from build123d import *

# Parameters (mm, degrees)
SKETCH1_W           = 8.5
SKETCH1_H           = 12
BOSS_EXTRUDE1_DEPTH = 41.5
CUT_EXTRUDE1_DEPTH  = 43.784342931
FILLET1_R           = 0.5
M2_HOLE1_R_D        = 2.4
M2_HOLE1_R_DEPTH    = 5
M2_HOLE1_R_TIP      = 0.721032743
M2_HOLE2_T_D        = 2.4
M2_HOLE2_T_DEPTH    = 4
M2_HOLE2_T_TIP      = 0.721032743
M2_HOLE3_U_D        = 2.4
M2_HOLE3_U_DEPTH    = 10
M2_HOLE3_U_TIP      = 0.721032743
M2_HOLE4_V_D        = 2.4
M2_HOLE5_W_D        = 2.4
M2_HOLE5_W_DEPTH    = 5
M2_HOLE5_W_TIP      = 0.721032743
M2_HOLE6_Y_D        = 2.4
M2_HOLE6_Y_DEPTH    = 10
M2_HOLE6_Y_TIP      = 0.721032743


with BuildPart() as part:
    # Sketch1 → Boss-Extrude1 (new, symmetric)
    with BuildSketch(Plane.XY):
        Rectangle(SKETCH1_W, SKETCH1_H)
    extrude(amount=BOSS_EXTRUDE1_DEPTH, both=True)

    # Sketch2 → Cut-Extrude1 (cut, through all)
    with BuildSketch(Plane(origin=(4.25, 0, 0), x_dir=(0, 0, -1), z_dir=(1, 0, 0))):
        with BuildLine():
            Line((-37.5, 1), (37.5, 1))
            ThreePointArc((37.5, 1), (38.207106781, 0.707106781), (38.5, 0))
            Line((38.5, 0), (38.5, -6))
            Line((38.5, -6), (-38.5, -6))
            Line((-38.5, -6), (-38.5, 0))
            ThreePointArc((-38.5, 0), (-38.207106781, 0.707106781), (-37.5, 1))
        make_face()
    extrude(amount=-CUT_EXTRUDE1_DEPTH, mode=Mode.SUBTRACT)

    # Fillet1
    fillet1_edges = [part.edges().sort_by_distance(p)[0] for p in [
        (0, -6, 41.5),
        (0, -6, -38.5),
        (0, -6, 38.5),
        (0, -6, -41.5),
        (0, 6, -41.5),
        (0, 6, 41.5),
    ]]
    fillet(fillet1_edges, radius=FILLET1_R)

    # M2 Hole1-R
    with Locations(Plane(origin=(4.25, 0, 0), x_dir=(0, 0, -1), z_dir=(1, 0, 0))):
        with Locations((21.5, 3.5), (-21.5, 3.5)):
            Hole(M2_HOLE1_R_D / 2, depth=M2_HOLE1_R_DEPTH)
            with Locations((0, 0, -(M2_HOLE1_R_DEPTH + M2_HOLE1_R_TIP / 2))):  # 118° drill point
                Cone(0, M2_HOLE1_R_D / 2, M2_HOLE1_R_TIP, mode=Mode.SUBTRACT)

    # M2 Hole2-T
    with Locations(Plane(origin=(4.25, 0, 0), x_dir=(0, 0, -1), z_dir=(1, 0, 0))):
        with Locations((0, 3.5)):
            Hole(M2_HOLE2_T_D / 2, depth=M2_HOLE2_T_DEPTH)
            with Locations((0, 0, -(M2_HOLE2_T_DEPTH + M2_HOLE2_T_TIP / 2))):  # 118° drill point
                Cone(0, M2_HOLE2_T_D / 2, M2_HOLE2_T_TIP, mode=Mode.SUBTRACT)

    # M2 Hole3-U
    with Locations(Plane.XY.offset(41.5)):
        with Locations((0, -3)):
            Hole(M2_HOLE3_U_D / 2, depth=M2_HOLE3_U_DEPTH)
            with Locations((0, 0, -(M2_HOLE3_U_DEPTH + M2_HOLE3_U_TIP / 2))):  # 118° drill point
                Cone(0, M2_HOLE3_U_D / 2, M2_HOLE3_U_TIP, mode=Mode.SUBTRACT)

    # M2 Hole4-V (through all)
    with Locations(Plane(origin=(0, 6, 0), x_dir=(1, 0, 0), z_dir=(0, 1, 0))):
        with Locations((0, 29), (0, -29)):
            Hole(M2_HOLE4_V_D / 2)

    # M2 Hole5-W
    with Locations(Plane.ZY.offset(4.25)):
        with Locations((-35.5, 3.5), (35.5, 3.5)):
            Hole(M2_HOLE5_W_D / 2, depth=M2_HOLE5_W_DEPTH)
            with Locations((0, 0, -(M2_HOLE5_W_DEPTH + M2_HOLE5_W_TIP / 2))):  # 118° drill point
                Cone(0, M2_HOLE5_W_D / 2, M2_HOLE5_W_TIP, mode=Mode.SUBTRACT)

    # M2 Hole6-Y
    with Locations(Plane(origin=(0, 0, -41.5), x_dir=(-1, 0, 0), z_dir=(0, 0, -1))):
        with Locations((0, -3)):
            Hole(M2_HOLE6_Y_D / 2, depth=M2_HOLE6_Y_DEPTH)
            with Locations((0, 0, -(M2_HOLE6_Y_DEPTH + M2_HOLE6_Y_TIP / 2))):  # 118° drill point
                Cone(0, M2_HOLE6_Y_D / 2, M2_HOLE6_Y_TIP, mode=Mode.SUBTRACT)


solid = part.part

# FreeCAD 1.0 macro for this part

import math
import FreeCAD as App
import Part
import Sketcher

V = App.Vector


def edges_at(feature, points):
    """Names of the edges that pass closest to the given points."""
    edges = feature.Shape.Edges
    near = lambda p: min(range(len(edges)), key=lambda i: edges[i].distToShape(Part.Vertex(*p))[0])
    return sorted({f"Edge{near(p) + 1}" for p in points})


def add_polygon(sketch, points):
    """Adds a closed chain of lines whose ends are joined by coincident constraints."""
    first, n = sketch.GeometryCount, len(points)
    for a, b in zip(points, points[1:] + points[:1]):
        sketch.addGeometry(Part.LineSegment(App.Vector(*a, 0), App.Vector(*b, 0)), False)
    for i in range(n):
        sketch.addConstraint(Sketcher.Constraint("Coincident", first + i, 2, first + (i + 1) % n, 1))

doc = App.newDocument("Part")
params = doc.addObject("Spreadsheet::Sheet", "Params")
for row, (alias, value) in enumerate([
    ("sketch1_height", "12 mm"),
    ("sketch1_width", "8.5 mm"),
    ("pad1_length", "83 mm"),
    ("sketch2_radius", "1 mm"),
    ("sketch2_width", "6 mm"),
    ("sketch2_height", "75 mm"),
    ("fillet_radius", "0.5 mm"),
    ("sketch3_diameter", "2.4 mm"),
    ("hole_diameter", "2.4 mm"),
    ("hole_depth", "5 mm"),
    ("sketch4_diameter", "2.4 mm"),
    ("hole2_diameter", "2.4 mm"),
    ("hole2_depth", "4 mm"),
    ("sketch5_diameter", "2.4 mm"),
    ("hole3_diameter", "2.4 mm"),
    ("hole3_depth", "10 mm"),
    ("sketch6_diameter", "2.4 mm"),
    ("hole4_diameter", "2.4 mm"),
    ("sketch7_diameter", "2.4 mm"),
    ("hole5_diameter", "2.4 mm"),
    ("hole5_depth", "5 mm"),
    ("sketch8_diameter", "2.4 mm"),
    ("hole6_diameter", "2.4 mm"),
    ("hole6_depth", "10 mm"),
], start=1):
    params.set(f"A{row}", alias)
    params.set(f"B{row}", "=" + value)
    params.setAlias(f"B{row}", alias)

body = doc.addObject("PartDesign::Body", "Body")

# Sketch on XY plane
sketch1 = body.newObject("Sketcher::SketchObject", "Sketch")
sketch1.AttachmentSupport = (doc.getObject("XY_Plane"), [""])
sketch1.MapMode = "FlatFace"
add_polygon(sketch1, [(-4, 6), (-4, -6), (4, -6), (4, 6)])  # lines 0-3
sketch1.addConstraint([
    Sketcher.Constraint("Vertical", 0),
    Sketcher.Constraint("Horizontal", 1),
    Sketcher.Constraint("Vertical", 2),
    Sketcher.Constraint("Horizontal", 3),
    Sketcher.Constraint("Symmetric", 0, 2, 2, 2, -1, 1),
    Sketcher.Constraint("DistanceY", 0, 2, 0, 1, 12.0),
    Sketcher.Constraint("DistanceX", 1, 1, 1, 2, 8.5),
])
sketch1.setExpression("Constraints[9]", "Params.sketch1_height")
sketch1.setExpression("Constraints[10]", "Params.sketch1_width")
pad1 = body.newObject("PartDesign::Pad", "Pad")
pad1.Profile = sketch1
pad1.setExpression("Length", "Params.pad1_length")
pad1.Midplane = True

# Sketch on YZ plane
sketch2 = body.newObject("Sketcher::SketchObject", "Sketch001")
sketch2.AttachmentSupport = (doc.getObject("YZ_Plane"), [""])
sketch2.MapMode = "FlatFace"
sketch2.AttachmentOffset = App.Placement(V(0, 0, 4.25), App.Rotation())
sketch2.addGeometry([
    Part.LineSegment(V(1, -37.5, 0), V(1, 37.5, 0)),  # 0
    Part.ArcOfCircle(Part.Circle(V(0, 37.5, 0), V(0, 0, 1), 1), math.radians(0), math.radians(90)),  # 1
    Part.LineSegment(V(0, 38.5, 0), V(-6, 38.5, 0)),  # 2
    Part.LineSegment(V(-6, 38.5, 0), V(-6, -38.5, 0)),  # 3
    Part.LineSegment(V(-6, -38.5, 0), V(0, -38.5, 0)),  # 4
    Part.ArcOfCircle(Part.Circle(V(0, -37.5, 0), V(0, 0, 1), 1), math.radians(-90), math.radians(0)),  # 5
], False)
sketch2.addConstraint([
    Sketcher.Constraint("Tangent", 0, 2, 1, 1),
    Sketcher.Constraint("Tangent", 1, 2, 2, 1),
    Sketcher.Constraint("Coincident", 2, 2, 3, 1),
    Sketcher.Constraint("Coincident", 3, 2, 4, 1),
    Sketcher.Constraint("Tangent", 4, 2, 5, 1),
    Sketcher.Constraint("Tangent", 5, 2, 0, 1),
    Sketcher.Constraint("Vertical", 0),
    Sketcher.Constraint("Horizontal", 2),
    Sketcher.Constraint("Vertical", 3),
    Sketcher.Constraint("Horizontal", 4),
    Sketcher.Constraint("Equal", 1, 5),
    Sketcher.Constraint("Symmetric", 1, 3, 5, 3, -1, 1),
    Sketcher.Constraint("Radius", 1, 1.0),
    Sketcher.Constraint("DistanceX", 2, 2, 2, 1, 6.0),
    Sketcher.Constraint("DistanceY", 0, 1, 0, 2, 75.0),
])
sketch2.setExpression("Constraints[12]", "Params.sketch2_radius")
sketch2.setExpression("Constraints[13]", "Params.sketch2_width")
sketch2.setExpression("Constraints[14]", "Params.sketch2_height")
pocket1 = body.newObject("PartDesign::Pocket", "Pocket")
pocket1.Profile = sketch2
pocket1.Type = "ThroughAll"
doc.recompute()

fillet = body.newObject("PartDesign::Fillet", "Fillet")
fillet.Base = (pocket1, edges_at(pocket1, [
    (0, -6, 41.5),
    (0, -6, -38.5),
    (0, -6, 38.5),
    (0, -6, -41.5),
    (0, 6, -41.5),
    (0, 6, 41.5),
]))
fillet.setExpression("Radius", "Params.fillet_radius")

# Sketch on YZ plane
sketch3 = body.newObject("Sketcher::SketchObject", "Sketch002")
sketch3.AttachmentSupport = (doc.getObject("YZ_Plane"), [""])
sketch3.MapMode = "FlatFace"
sketch3.AttachmentOffset = App.Placement(V(0, 0, 4.25), App.Rotation())
sketch3.addGeometry([
    Part.Circle(V(3.5, -21.5, 0), V(0, 0, 1), 1.2),
    Part.Circle(V(3.5, 21.5, 0), V(0, 0, 1), 1.2),
], False)
sketch3.addConstraint([
    Sketcher.Constraint("Equal", 0, 1),
    Sketcher.Constraint("Symmetric", 0, 3, 1, 3, -1),
    Sketcher.Constraint("Diameter", 0, 2.4),
    Sketcher.Constraint("DistanceY", 0, 3, 1, 3, 43.0),
    Sketcher.Constraint("DistanceX", -1, 1, 0, 3, 3.5),
])
sketch3.setExpression("Constraints[2]", "Params.sketch3_diameter")
doc.recompute()
hole = body.newObject("PartDesign::Hole", "Hole")
hole.Profile = sketch3
hole.ThreadType = "None"
hole.setExpression("Diameter", "Params.hole_diameter")
hole.DepthType = "Dimension"
hole.setExpression("Depth", "Params.hole_depth")
hole.DrillPoint = "Angled"
hole.DrillPointAngle = 118

# Sketch on YZ plane
sketch4 = body.newObject("Sketcher::SketchObject", "Sketch003")
sketch4.AttachmentSupport = (doc.getObject("YZ_Plane"), [""])
sketch4.MapMode = "FlatFace"
sketch4.AttachmentOffset = App.Placement(V(0, 0, 4.25), App.Rotation())
sketch4.addGeometry(Part.Circle(V(3.5, 0, 0), V(0, 0, 1), 1.2), False)
sketch4.addConstraint([
    Sketcher.Constraint("PointOnObject", 0, 3, -1),
    Sketcher.Constraint("Diameter", 0, 2.4),
    Sketcher.Constraint("DistanceX", -1, 1, 0, 3, 3.5),
])
sketch4.setExpression("Constraints[1]", "Params.sketch4_diameter")
doc.recompute()
hole2 = body.newObject("PartDesign::Hole", "Hole001")
hole2.Profile = sketch4
hole2.ThreadType = "None"
hole2.setExpression("Diameter", "Params.hole2_diameter")
hole2.DepthType = "Dimension"
hole2.setExpression("Depth", "Params.hole2_depth")
hole2.DrillPoint = "Angled"
hole2.DrillPointAngle = 118

# Sketch on XY plane
sketch5 = body.newObject("Sketcher::SketchObject", "Sketch004")
sketch5.AttachmentSupport = (doc.getObject("XY_Plane"), [""])
sketch5.MapMode = "FlatFace"
sketch5.AttachmentOffset = App.Placement(V(0, 0, 41.5), App.Rotation())
sketch5.addGeometry(Part.Circle(V(0, -3, 0), V(0, 0, 1), 1.2), False)
sketch5.addConstraint([
    Sketcher.Constraint("PointOnObject", 0, 3, -2),
    Sketcher.Constraint("Diameter", 0, 2.4),
    Sketcher.Constraint("DistanceY", 0, 3, -1, 1, 3.0),
])
sketch5.setExpression("Constraints[1]", "Params.sketch5_diameter")
doc.recompute()
hole3 = body.newObject("PartDesign::Hole", "Hole002")
hole3.Profile = sketch5
hole3.ThreadType = "None"
hole3.setExpression("Diameter", "Params.hole3_diameter")
hole3.DepthType = "Dimension"
hole3.setExpression("Depth", "Params.hole3_depth")
hole3.DrillPoint = "Angled"
hole3.DrillPointAngle = 118

# Sketch on XZ plane
sketch6 = body.newObject("Sketcher::SketchObject", "Sketch005")
sketch6.AttachmentSupport = (doc.getObject("XZ_Plane"), [""])
sketch6.MapMode = "FlatFace"
sketch6.AttachmentOffset = App.Placement(V(0, 0, -6), App.Rotation())
sketch6.addGeometry([
    Part.Circle(V(0, -29, 0), V(0, 0, 1), 1.2),
    Part.Circle(V(0, 29, 0), V(0, 0, 1), 1.2),
], False)
sketch6.addConstraint([
    Sketcher.Constraint("Equal", 0, 1),
    Sketcher.Constraint("Symmetric", 0, 3, 1, 3, -1, 1),
    Sketcher.Constraint("PointOnObject", 0, 3, -2),
    Sketcher.Constraint("Diameter", 0, 2.4),
    Sketcher.Constraint("DistanceY", 0, 3, -1, 1, 29.0),
])
sketch6.setExpression("Constraints[3]", "Params.sketch6_diameter")
doc.recompute()
hole4 = body.newObject("PartDesign::Hole", "Hole003")
hole4.Profile = sketch6
hole4.ThreadType = "None"
hole4.setExpression("Diameter", "Params.hole4_diameter")
hole4.DepthType = "ThroughAll"
hole4.Reversed = True

# Sketch on YZ plane
sketch7 = body.newObject("Sketcher::SketchObject", "Sketch006")
sketch7.AttachmentSupport = (doc.getObject("YZ_Plane"), [""])
sketch7.MapMode = "FlatFace"
sketch7.AttachmentOffset = App.Placement(V(0, 0, -4.25), App.Rotation())
sketch7.addGeometry([
    Part.Circle(V(3.5, -35.5, 0), V(0, 0, 1), 1.2),
    Part.Circle(V(3.5, 35.5, 0), V(0, 0, 1), 1.2),
], False)
sketch7.addConstraint([
    Sketcher.Constraint("Equal", 0, 1),
    Sketcher.Constraint("Symmetric", 0, 3, 1, 3, -1),
    Sketcher.Constraint("Diameter", 0, 2.4),
    Sketcher.Constraint("DistanceY", 0, 3, 1, 3, 71.0),
    Sketcher.Constraint("DistanceX", -1, 1, 0, 3, 3.5),
])
sketch7.setExpression("Constraints[2]", "Params.sketch7_diameter")
doc.recompute()
hole5 = body.newObject("PartDesign::Hole", "Hole004")
hole5.Profile = sketch7
hole5.ThreadType = "None"
hole5.setExpression("Diameter", "Params.hole5_diameter")
hole5.DepthType = "Dimension"
hole5.setExpression("Depth", "Params.hole5_depth")
hole5.DrillPoint = "Angled"
hole5.DrillPointAngle = 118
hole5.Reversed = True

# Sketch on XY plane
sketch8 = body.newObject("Sketcher::SketchObject", "Sketch007")
sketch8.AttachmentSupport = (doc.getObject("XY_Plane"), [""])
sketch8.MapMode = "FlatFace"
sketch8.AttachmentOffset = App.Placement(V(0, 0, -41.5), App.Rotation())
sketch8.addGeometry(Part.Circle(V(0, -3, 0), V(0, 0, 1), 1.2), False)
sketch8.addConstraint([
    Sketcher.Constraint("PointOnObject", 0, 3, -2),
    Sketcher.Constraint("Diameter", 0, 2.4),
    Sketcher.Constraint("DistanceY", 0, 3, -1, 1, 3.0),
])
sketch8.setExpression("Constraints[1]", "Params.sketch8_diameter")
doc.recompute()
hole6 = body.newObject("PartDesign::Hole", "Hole005")
hole6.Profile = sketch8
hole6.ThreadType = "None"
hole6.setExpression("Diameter", "Params.hole6_diameter")
hole6.DepthType = "Dimension"
hole6.setExpression("Depth", "Params.hole6_depth")
hole6.DrillPoint = "Angled"
hole6.DrillPointAngle = 118
hole6.Reversed = True

doc.recompute()
